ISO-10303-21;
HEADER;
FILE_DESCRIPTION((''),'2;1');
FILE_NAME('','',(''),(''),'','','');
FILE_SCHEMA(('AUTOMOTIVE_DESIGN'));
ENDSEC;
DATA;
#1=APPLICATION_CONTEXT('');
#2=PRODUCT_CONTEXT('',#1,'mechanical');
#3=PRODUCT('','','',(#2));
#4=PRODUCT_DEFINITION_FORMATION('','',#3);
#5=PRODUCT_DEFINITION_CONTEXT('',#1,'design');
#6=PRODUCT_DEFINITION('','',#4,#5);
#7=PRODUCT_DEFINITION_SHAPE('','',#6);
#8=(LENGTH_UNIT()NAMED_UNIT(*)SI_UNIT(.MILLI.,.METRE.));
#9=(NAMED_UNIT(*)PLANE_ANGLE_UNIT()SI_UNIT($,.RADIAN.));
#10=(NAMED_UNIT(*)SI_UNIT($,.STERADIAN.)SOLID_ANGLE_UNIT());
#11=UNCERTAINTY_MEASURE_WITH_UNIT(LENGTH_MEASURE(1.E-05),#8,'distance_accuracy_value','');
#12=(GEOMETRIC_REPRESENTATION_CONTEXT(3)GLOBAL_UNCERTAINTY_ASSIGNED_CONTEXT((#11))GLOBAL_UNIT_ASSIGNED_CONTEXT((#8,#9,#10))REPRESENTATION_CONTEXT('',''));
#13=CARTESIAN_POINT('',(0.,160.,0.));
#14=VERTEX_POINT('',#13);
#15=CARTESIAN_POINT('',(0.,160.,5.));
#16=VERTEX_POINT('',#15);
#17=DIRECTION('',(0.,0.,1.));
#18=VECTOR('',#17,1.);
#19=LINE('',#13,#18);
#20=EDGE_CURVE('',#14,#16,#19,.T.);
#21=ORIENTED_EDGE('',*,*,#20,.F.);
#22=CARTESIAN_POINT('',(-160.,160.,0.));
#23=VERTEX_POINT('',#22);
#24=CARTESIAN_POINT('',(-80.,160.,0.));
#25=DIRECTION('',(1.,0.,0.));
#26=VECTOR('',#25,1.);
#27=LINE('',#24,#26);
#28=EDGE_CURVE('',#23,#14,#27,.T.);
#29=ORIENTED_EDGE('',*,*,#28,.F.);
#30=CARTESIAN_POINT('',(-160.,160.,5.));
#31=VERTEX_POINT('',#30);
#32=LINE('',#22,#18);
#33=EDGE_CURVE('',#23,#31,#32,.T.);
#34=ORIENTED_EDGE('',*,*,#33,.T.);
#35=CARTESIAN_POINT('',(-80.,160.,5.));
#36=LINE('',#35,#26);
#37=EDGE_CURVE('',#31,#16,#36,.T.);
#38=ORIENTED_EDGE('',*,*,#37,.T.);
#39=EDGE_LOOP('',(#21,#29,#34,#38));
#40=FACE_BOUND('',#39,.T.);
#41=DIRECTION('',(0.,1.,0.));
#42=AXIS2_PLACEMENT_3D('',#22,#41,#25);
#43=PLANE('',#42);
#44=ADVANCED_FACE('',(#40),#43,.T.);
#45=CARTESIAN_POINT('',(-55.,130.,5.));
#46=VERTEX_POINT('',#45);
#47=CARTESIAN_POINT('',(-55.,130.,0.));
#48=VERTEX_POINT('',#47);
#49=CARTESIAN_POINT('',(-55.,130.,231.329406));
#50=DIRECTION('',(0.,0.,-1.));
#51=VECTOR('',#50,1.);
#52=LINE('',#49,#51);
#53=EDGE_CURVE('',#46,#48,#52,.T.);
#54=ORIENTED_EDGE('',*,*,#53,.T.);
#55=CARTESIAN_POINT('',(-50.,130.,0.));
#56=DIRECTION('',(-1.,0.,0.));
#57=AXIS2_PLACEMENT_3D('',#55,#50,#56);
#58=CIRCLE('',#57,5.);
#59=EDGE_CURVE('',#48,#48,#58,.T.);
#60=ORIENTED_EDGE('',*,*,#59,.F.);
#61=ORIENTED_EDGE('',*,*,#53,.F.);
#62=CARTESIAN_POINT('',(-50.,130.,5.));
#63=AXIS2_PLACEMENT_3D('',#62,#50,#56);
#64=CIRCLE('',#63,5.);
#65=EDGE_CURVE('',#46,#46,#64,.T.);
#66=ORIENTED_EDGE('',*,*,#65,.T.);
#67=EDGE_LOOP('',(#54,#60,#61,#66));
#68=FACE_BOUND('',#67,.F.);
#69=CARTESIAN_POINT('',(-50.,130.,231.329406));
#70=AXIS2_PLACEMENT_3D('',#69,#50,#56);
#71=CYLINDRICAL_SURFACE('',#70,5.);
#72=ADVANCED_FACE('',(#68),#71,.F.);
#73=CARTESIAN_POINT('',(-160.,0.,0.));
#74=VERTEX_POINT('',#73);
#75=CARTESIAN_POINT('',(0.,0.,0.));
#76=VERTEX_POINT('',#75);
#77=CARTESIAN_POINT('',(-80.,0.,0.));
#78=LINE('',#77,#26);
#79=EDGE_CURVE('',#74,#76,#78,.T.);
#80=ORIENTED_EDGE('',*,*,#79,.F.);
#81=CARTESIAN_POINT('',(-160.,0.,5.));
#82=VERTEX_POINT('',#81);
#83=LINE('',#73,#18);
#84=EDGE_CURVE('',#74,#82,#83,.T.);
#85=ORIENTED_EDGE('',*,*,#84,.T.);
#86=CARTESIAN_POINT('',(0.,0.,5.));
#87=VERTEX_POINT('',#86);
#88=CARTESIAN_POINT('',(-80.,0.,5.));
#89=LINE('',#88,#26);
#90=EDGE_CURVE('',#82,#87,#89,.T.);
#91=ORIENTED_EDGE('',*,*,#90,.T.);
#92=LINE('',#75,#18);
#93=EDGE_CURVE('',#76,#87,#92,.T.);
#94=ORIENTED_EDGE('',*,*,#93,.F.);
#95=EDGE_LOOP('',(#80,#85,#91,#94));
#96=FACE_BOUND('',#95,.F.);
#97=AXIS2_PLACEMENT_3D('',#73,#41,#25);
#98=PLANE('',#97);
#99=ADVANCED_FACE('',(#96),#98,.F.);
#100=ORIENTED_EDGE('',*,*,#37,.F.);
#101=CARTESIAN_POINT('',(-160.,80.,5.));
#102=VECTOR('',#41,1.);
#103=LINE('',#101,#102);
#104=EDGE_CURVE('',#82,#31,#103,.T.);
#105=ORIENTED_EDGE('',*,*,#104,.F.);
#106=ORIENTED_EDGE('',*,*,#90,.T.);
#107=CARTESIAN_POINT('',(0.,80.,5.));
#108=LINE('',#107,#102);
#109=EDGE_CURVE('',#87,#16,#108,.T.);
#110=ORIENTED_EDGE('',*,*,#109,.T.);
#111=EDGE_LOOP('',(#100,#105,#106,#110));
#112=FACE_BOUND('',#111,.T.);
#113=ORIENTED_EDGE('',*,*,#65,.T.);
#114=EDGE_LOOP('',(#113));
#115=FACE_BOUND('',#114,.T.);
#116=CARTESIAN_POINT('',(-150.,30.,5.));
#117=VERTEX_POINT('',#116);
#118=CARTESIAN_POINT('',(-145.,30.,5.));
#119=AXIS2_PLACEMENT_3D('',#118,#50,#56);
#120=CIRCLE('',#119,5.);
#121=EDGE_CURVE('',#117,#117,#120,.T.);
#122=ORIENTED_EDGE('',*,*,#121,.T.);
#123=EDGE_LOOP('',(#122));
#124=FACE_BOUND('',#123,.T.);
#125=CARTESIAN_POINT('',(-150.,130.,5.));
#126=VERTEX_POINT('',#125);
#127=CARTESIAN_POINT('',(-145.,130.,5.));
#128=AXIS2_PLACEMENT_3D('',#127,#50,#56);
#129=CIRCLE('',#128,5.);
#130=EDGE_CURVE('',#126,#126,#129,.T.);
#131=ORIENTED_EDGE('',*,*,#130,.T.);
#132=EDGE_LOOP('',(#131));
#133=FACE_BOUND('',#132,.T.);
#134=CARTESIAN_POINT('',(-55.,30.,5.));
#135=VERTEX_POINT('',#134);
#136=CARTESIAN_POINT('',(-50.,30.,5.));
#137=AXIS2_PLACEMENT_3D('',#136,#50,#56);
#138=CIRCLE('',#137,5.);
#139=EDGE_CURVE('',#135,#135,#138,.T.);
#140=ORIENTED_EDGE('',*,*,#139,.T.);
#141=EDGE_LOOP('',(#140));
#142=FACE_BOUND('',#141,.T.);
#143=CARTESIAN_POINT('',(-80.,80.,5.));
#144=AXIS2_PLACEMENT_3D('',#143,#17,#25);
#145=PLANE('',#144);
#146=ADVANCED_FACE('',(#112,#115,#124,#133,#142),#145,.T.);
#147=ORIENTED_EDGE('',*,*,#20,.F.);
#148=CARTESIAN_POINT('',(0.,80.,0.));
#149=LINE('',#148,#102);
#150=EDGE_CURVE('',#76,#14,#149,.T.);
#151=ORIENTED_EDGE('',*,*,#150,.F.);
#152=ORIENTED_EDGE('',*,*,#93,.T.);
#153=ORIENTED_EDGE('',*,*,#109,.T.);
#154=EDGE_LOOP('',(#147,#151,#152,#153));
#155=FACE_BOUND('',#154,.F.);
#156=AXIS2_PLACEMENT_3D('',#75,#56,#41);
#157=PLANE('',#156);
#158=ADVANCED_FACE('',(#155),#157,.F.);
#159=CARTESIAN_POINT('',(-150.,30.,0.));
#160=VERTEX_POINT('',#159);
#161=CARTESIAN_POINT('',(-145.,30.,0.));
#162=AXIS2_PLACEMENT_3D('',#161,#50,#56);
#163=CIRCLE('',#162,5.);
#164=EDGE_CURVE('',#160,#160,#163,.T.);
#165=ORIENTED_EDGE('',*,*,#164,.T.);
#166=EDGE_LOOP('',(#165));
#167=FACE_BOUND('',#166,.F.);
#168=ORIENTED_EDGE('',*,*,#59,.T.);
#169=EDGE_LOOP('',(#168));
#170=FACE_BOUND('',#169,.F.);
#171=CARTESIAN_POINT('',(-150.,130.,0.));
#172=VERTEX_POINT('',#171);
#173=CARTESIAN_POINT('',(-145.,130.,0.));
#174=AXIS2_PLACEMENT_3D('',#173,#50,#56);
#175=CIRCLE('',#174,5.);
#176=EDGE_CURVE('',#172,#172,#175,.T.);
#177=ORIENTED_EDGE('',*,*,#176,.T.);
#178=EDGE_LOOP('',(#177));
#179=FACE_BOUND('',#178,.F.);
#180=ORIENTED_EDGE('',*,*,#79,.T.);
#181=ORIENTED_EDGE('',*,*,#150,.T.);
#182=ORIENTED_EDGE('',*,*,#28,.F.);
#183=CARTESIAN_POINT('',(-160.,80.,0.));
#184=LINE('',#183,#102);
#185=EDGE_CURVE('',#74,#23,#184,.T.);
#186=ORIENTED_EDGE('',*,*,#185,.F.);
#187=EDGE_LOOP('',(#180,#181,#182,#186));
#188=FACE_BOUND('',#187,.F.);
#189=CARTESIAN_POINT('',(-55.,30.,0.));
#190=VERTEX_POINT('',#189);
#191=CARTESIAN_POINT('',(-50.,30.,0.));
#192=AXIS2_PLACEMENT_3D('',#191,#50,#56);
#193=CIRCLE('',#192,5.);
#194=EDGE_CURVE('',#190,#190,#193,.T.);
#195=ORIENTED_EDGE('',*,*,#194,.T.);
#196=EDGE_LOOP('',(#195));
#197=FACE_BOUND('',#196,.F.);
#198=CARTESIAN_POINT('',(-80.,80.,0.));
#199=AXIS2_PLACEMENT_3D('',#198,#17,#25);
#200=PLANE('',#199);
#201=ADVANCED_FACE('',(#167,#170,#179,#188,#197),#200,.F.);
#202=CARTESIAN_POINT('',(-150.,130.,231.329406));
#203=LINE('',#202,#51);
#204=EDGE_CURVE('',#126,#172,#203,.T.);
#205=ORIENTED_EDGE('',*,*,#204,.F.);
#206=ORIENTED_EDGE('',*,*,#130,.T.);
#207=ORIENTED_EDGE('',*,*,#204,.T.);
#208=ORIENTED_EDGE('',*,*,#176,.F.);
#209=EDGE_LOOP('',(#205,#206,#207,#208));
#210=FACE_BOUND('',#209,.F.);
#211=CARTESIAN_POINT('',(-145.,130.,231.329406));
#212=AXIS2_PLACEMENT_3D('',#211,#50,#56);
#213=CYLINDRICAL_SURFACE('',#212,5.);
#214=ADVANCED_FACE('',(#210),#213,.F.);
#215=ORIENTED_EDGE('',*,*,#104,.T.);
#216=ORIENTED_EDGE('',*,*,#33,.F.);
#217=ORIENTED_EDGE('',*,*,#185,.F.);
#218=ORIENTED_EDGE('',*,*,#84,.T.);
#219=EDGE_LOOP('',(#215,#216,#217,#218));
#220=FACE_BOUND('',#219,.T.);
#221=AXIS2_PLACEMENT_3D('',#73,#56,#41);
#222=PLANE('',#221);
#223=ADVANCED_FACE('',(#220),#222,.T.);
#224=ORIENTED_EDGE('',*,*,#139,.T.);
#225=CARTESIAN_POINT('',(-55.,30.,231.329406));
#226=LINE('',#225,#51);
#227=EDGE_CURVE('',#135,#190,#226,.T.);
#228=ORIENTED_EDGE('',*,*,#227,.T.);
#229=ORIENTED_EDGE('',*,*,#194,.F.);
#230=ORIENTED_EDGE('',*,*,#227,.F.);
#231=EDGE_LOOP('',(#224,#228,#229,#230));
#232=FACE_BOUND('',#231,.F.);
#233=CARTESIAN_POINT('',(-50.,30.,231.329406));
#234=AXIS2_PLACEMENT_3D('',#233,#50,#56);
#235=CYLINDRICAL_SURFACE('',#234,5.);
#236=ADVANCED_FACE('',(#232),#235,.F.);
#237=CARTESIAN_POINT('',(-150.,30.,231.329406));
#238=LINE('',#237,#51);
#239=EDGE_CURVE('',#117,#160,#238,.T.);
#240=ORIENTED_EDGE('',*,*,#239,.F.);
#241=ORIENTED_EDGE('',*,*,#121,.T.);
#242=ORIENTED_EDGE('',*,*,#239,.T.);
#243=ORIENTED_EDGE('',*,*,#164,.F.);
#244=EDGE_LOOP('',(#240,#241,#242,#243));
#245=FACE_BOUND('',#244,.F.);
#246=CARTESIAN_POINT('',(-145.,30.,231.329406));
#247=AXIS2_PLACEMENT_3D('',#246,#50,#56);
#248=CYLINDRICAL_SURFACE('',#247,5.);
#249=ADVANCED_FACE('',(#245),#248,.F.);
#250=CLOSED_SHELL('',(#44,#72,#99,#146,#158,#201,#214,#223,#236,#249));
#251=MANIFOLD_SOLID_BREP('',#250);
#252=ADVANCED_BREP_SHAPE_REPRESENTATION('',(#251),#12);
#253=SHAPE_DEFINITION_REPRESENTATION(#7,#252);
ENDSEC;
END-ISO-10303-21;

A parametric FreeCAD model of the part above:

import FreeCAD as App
import Part
import Sketcher
Q = App.Units.Quantity


def add_polygon(sketch, points):
    """Adds a closed chain of lines whose ends are joined by coincident constraints."""
    first, n = sketch.GeometryCount, len(points)
    for a, b in zip(points, points[1:] + points[:1]):
        sketch.addGeometry(Part.LineSegment(App.Vector(*a, 0), App.Vector(*b, 0)), False)
    for i in range(n):
        sketch.addConstraint(Sketcher.Constraint("Coincident", first + i, 2, first + (i + 1) % n, 1))

doc = App.newDocument("Part")
body = doc.addObject("PartDesign::Body", "Body")

# Sketch on XY plane
sketch1 = doc.addObject("Sketcher::SketchObject", "Sketch")
body.addObject(sketch1)
sketch1.AttachmentSupport = (doc.XY_Plane, [""])
sketch1.MapMode = "FlatFace"
add_polygon(sketch1, [(-160, 160), (-160, 0), (0, 0), (0, 160)])  # lines 0-3
sketch1.addConstraint(Sketcher.Constraint("Vertical", 0))
sketch1.addConstraint(Sketcher.Constraint("Horizontal", 1))
sketch1.addConstraint(Sketcher.Constraint("Vertical", 2))
sketch1.addConstraint(Sketcher.Constraint("Horizontal", 3))
sketch1.addConstraint(Sketcher.Constraint("Coincident", 1, 2, -1, 1))
sketch1.addConstraint(Sketcher.Constraint("Equal", 3, 0))
sketch1.addConstraint(Sketcher.Constraint("DistanceX", 1, 1, 1, 2, Q("160 mm")))
pad1 = doc.addObject("PartDesign::Pad", "Pad")
body.addObject(pad1)
pad1.Profile = sketch1
pad1.Length = 5

# Sketch on XY plane
sketch2 = doc.addObject("Sketcher::SketchObject", "Sketch001")
body.addObject(sketch2)
sketch2.AttachmentSupport = (doc.XY_Plane, [""])
sketch2.MapMode = "FlatFace"
sketch2.AttachmentOffset = App.Placement(App.Vector(0, 0, 5), App.Rotation())
sketch2.addGeometry(Part.Circle(App.Vector(-50, 30, 0), App.Vector(0, 0, 1), 5), False)
sketch2.addGeometry(Part.Circle(App.Vector(-145, 30, 0), App.Vector(0, 0, 1), 5), False)
sketch2.addGeometry(Part.Circle(App.Vector(-50, 130, 0), App.Vector(0, 0, 1), 5), False)
sketch2.addGeometry(Part.Circle(App.Vector(-145, 130, 0), App.Vector(0, 0, 1), 5), False)
sketch2.addConstraint(Sketcher.Constraint("Equal", 0, 1))
sketch2.addConstraint(Sketcher.Constraint("Equal", 1, 2))
sketch2.addConstraint(Sketcher.Constraint("Equal", 2, 3))
sketch2.addConstraint(Sketcher.Constraint("Horizontal", 0, 3, 1, 3))
sketch2.addConstraint(Sketcher.Constraint("Horizontal", 2, 3, 3, 3))
sketch2.addConstraint(Sketcher.Constraint("Vertical", 0, 3, 2, 3))
sketch2.addConstraint(Sketcher.Constraint("Vertical", 1, 3, 3, 3))
sketch2.addConstraint(Sketcher.Constraint("Diameter", 0, Q("10 mm")))
sketch2.addConstraint(Sketcher.Constraint("DistanceX", 0, 3, -1, 1, Q("50 mm")))
sketch2.addConstraint(Sketcher.Constraint("DistanceY", -1, 1, 0, 3, Q("30 mm")))
sketch2.addConstraint(Sketcher.Constraint("DistanceX", 1, 3, -1, 1, Q("145 mm")))
sketch2.addConstraint(Sketcher.Constraint("DistanceY", -1, 1, 2, 3, Q("130 mm")))
doc.recompute()
hole = doc.addObject("PartDesign::Hole", "Hole")
body.addObject(hole)
hole.Profile = sketch2
hole.ThreadType = "None"
hole.Diameter = 10
hole.DepthType = "ThroughAll"

doc.recompute()
